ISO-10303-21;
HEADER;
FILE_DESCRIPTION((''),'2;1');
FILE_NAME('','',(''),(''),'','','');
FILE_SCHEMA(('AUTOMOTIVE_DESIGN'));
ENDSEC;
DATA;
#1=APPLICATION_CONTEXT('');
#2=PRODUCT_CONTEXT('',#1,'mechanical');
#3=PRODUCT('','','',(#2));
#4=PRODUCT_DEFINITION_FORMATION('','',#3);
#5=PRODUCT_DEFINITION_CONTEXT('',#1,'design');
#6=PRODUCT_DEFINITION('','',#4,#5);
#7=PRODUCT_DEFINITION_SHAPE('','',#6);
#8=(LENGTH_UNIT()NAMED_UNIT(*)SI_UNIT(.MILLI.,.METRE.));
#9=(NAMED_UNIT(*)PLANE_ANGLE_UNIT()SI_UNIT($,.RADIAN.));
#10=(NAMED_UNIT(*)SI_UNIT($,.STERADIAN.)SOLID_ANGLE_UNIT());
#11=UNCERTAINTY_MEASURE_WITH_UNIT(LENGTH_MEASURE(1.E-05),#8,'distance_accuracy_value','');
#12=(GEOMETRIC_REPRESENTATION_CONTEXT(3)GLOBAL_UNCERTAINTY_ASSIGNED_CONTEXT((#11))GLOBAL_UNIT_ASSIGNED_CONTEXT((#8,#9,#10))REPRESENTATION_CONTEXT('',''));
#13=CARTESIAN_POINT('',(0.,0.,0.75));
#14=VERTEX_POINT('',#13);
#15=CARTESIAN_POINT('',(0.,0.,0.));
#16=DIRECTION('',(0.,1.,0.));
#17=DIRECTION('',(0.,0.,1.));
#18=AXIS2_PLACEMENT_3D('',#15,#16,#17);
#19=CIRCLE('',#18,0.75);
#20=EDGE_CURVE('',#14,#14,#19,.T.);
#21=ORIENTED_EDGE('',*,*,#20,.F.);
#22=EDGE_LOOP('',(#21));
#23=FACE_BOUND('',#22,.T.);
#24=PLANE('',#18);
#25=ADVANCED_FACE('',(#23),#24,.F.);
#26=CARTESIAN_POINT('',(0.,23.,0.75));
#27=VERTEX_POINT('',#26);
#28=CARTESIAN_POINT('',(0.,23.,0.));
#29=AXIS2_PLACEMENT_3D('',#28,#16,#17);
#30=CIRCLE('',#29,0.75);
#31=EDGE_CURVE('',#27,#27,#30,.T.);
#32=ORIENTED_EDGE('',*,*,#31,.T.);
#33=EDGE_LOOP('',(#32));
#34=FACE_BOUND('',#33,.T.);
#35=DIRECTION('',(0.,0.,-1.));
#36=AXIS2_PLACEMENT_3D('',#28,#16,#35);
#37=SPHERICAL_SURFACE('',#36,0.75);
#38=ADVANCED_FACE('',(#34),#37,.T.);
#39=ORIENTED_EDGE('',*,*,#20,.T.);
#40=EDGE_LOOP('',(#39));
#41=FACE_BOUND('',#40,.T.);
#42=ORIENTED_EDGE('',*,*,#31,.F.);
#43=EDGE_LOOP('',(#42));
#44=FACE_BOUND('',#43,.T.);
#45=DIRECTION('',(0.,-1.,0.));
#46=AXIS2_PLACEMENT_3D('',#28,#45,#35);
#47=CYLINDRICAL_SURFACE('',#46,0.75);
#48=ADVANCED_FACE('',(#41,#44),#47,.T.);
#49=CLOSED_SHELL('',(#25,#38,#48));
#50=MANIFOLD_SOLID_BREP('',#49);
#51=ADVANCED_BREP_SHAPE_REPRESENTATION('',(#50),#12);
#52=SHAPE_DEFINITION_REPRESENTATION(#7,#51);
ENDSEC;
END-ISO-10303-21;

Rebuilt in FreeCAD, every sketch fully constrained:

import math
import FreeCAD as App
import Part
import Sketcher

V = App.Vector

doc = App.newDocument("Part")
body = doc.addObject("PartDesign::Body", "Body")

# Sketch on XZ plane
sketch1 = doc.addObject("Sketcher::SketchObject", "Sketch")
body.addObject(sketch1)
sketch1.AttachmentSupport = (doc.XZ_Plane, [""])
sketch1.MapMode = "FlatFace"
sketch1.addGeometry(Part.Circle(V(0, 0, 0), V(0, 0, 1), 0.8), False)
sketch1.addConstraint(Sketcher.Constraint("Coincident", 0, 3, -1, 1))
sketch1.addConstraint(Sketcher.Constraint("Diameter", 0, 1.5))
pad1 = doc.addObject("PartDesign::Pad", "Pad")
body.addObject(pad1)
pad1.Profile = sketch1
pad1.Length = 23
pad1.Reversed = True

# Sketch on YZ plane
sketch2 = doc.addObject("Sketcher::SketchObject", "Sketch001")
body.addObject(sketch2)
sketch2.AttachmentSupport = (doc.YZ_Plane, [""])
sketch2.MapMode = "FlatFace"
sketch2.addGeometry(Part.LineSegment(V(23.8, 0, 0), V(22.2, 0, 0)), False)
sketch2.addGeometry(Part.ArcOfCircle(Part.Circle(V(23, 0, 0), V(0, 0, 1), 0.8), math.radians(180), math.radians(360)), False)
sketch2.addConstraint(Sketcher.Constraint("Coincident", 0, 1, 1, 2))
sketch2.addConstraint(Sketcher.Constraint("Coincident", 1, 1, 0, 2))
sketch2.addConstraint(Sketcher.Constraint("Horizontal", 0))
sketch2.addConstraint(Sketcher.Constraint("PointOnObject", 1, 3, -1))
sketch2.addConstraint(Sketcher.Constraint("PointOnObject", 0, 1, -1))
sketch2.addConstraint(Sketcher.Constraint("Radius", 1, 0.75))
sketch2.addConstraint(Sketcher.Constraint("DistanceX", -1, 1, 1, 3, 23.0))
revolution = doc.addObject("PartDesign::Revolution", "Revolution")
body.addObject(revolution)
revolution.Profile = sketch2
revolution.ReferenceAxis = (sketch2, ["H_Axis"])
revolution.Angle = 360

doc.recompute()
